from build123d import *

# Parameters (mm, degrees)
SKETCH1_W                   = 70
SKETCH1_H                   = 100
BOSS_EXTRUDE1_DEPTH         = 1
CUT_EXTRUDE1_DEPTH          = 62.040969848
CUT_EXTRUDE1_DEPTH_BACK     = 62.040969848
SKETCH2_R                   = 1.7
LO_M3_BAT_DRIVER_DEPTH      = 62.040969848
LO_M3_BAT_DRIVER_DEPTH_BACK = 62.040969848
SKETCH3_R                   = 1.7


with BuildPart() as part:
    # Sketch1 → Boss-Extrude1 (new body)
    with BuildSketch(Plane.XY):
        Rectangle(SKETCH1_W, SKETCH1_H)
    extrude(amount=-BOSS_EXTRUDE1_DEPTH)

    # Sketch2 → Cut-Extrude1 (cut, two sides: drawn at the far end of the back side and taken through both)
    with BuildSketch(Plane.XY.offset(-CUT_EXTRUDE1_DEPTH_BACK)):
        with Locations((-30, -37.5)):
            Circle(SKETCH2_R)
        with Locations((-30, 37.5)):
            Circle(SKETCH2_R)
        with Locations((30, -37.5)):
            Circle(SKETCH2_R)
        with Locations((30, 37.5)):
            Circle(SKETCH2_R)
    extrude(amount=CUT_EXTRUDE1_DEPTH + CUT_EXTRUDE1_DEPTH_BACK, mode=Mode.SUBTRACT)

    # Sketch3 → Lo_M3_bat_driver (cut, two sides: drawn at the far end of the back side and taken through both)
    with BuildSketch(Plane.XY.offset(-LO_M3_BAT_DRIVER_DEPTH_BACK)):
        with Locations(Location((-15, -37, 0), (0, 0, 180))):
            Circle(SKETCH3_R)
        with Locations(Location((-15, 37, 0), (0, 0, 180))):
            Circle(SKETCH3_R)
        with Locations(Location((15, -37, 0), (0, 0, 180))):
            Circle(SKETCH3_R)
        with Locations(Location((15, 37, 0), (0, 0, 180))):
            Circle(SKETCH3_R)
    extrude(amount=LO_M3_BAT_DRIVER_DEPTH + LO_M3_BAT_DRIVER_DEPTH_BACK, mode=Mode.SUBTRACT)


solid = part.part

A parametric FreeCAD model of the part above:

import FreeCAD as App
import Part
import Sketcher

doc = App.newDocument("Part")
body = doc.addObject("PartDesign::Body", "Body")

# Sketch on XY plane
sketch1 = body.newObject("Sketcher::SketchObject", "Sketch")
sketch1.AttachmentSupport = (doc.getObject("XY_Plane"), [""])
sketch1.MapMode = "FlatFace"
sketch1.addGeometry([
    Part.LineSegment(App.Vector(-35, 50, 0), App.Vector(-35, -50, 0)),
    Part.LineSegment(App.Vector(-35, -50, 0), App.Vector(35, -50, 0)),
    Part.LineSegment(App.Vector(35, -50, 0), App.Vector(35, 50, 0)),
    Part.LineSegment(App.Vector(35, 50, 0), App.Vector(-35, 50, 0)),
], False)
sketch1.addConstraint([
    Sketcher.Constraint("Coincident", 0, 2, 1, 1),
    Sketcher.Constraint("Coincident", 1, 2, 2, 1),
    Sketcher.Constraint("Coincident", 2, 2, 3, 1),
    Sketcher.Constraint("Coincident", 3, 2, 0, 1),
    Sketcher.Constraint("Vertical", 0),
    Sketcher.Constraint("Horizontal", 1),
    Sketcher.Constraint("Vertical", 2),
    Sketcher.Constraint("Horizontal", 3),
    Sketcher.Constraint("Symmetric", 0, 2, 2, 2, -1, 1),
    Sketcher.Constraint("DistanceX", 1, 1, 1, 2, 70.0),
    Sketcher.Constraint("DistanceY", 0, 2, 0, 1, 100.0),
])
pad1 = body.newObject("PartDesign::Pad", "Pad")
pad1.Profile = sketch1
pad1.Length = 1
pad1.Reversed = True

# Sketch on XY plane
sketch2 = body.newObject("Sketcher::SketchObject", "Sketch001")
sketch2.AttachmentSupport = (doc.getObject("XY_Plane"), [""])
sketch2.MapMode = "FlatFace"
sketch2.addGeometry([
    Part.Circle(App.Vector(-30, -37.5, 0), App.Vector(0, 0, 1), 1.7),
    Part.Circle(App.Vector(-30, 37.5, 0), App.Vector(0, 0, 1), 1.7),
    Part.Circle(App.Vector(30, -37.5, 0), App.Vector(0, 0, 1), 1.7),
    Part.Circle(App.Vector(30, 37.5, 0), App.Vector(0, 0, 1), 1.7),
], False)
sketch2.addConstraint([
    Sketcher.Constraint("Equal", 0, 1),
    Sketcher.Constraint("Equal", 1, 2),
    Sketcher.Constraint("Equal", 2, 3),
    Sketcher.Constraint("Symmetric", 1, 3, 2, 3, -1, 1),
    Sketcher.Constraint("Symmetric", 0, 3, 3, 3, -1, 1),
    Sketcher.Constraint("Symmetric", 0, 3, 2, 3, -2),
    Sketcher.Constraint("Diameter", 0, 3.4),
    Sketcher.Constraint("DistanceX", 0, 3, -1, 1, 30.0),
    Sketcher.Constraint("DistanceY", 0, 3, 1, 3, 75.0),
])
pocket1 = body.newObject("PartDesign::Pocket", "Pocket")
pocket1.Profile = sketch2
pocket1.Type = "ThroughAll"
pocket1.Midplane = True

# Sketch on XY plane
sketch3 = body.newObject("Sketcher::SketchObject", "Sketch002")
sketch3.AttachmentSupport = (doc.getObject("XY_Plane"), [""])
sketch3.MapMode = "FlatFace"
sketch3.addGeometry([
    Part.Circle(App.Vector(-15, -37, 0), App.Vector(0, 0, 1), 1.7),
    Part.Circle(App.Vector(-15, 37, 0), App.Vector(0, 0, 1), 1.7),
    Part.Circle(App.Vector(15, -37, 0), App.Vector(0, 0, 1), 1.7),
    Part.Circle(App.Vector(15, 37, 0), App.Vector(0, 0, 1), 1.7),
], False)
sketch3.addConstraint([
    Sketcher.Constraint("Equal", 0, 1),
    Sketcher.Constraint("Equal", 1, 2),
    Sketcher.Constraint("Equal", 2, 3),
    Sketcher.Constraint("Symmetric", 1, 3, 2, 3, -1, 1),
    Sketcher.Constraint("Symmetric", 0, 3, 3, 3, -1, 1),
    Sketcher.Constraint("Symmetric", 0, 3, 2, 3, -2),
    Sketcher.Constraint("Diameter", 0, 3.4),
    Sketcher.Constraint("DistanceX", 0, 3, -1, 1, 15.0),
    Sketcher.Constraint("DistanceY", 0, 3, -1, 1, 37.0),
])
pocket2 = body.newObject("PartDesign::Pocket", "Pocket001")
pocket2.Profile = sketch3
pocket2.Type = "ThroughAll"
pocket2.Midplane = True

doc.recompute()
